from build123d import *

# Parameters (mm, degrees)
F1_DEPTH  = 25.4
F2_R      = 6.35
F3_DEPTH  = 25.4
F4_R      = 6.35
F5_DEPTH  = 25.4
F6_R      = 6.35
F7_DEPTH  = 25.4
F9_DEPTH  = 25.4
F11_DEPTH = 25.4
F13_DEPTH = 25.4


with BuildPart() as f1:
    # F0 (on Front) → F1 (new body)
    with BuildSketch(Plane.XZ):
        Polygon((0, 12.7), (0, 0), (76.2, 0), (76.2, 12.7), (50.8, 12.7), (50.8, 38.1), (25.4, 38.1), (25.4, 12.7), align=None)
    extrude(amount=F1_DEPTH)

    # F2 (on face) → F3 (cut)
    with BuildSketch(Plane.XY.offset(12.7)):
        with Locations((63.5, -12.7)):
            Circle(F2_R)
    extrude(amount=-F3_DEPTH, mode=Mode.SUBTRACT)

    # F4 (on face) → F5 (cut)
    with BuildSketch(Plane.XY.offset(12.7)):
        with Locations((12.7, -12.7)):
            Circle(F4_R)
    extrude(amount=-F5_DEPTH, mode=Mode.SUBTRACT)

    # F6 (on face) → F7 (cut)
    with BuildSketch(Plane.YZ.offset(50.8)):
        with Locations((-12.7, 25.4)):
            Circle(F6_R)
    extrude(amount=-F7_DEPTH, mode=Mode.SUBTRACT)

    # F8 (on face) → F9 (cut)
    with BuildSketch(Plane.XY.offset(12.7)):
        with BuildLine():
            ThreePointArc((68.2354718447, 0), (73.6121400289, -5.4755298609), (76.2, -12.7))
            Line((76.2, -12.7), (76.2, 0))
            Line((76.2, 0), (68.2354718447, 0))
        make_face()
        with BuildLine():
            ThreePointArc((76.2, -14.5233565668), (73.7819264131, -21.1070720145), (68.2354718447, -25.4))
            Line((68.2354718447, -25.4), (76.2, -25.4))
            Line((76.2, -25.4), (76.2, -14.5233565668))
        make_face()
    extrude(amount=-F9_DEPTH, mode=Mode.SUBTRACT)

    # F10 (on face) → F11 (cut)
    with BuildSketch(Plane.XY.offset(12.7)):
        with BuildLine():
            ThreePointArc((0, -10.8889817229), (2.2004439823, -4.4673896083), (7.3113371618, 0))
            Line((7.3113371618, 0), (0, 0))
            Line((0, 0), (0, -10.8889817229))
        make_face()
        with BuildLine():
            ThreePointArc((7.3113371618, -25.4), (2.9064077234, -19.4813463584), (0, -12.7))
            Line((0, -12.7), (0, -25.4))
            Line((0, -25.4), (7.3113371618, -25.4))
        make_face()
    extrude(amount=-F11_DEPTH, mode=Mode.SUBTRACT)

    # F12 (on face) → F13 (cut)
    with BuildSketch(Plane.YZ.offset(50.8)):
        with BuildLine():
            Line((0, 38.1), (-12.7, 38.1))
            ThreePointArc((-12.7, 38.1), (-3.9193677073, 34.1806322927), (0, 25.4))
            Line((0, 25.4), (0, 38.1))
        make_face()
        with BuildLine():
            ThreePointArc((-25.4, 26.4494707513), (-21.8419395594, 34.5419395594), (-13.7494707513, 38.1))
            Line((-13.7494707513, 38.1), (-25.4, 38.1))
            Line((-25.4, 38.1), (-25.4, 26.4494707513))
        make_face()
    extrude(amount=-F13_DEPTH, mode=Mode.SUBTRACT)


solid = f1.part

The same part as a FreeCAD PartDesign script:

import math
import FreeCAD as App
import Part
import Sketcher
Q = App.Units.Quantity

doc = App.newDocument("Part")
body = doc.addObject("PartDesign::Body", "Body")

# Sketch on XZ plane
sketch1 = body.newObject("Sketcher::SketchObject", "Sketch")
sketch1.AttachmentSupport = (doc.getObject("XZ_Plane"), [""])
sketch1.MapMode = "FlatFace"
sketch1.addGeometry(Part.LineSegment(App.Vector(0, 12.7, 0), App.Vector(0, 0, 0)), False)
sketch1.addGeometry(Part.LineSegment(App.Vector(0, 0, 0), App.Vector(76.2, 0, 0)), False)
sketch1.addGeometry(Part.LineSegment(App.Vector(76.2, 0, 0), App.Vector(76.2, 12.7, 0)), False)
sketch1.addGeometry(Part.LineSegment(App.Vector(76.2, 12.7, 0), App.Vector(50.8, 12.7, 0)), False)
sketch1.addGeometry(Part.LineSegment(App.Vector(50.8, 12.7, 0), App.Vector(50.8, 38.1, 0)), False)
sketch1.addGeometry(Part.LineSegment(App.Vector(50.8, 38.1, 0), App.Vector(25.4, 38.1, 0)), False)
sketch1.addGeometry(Part.LineSegment(App.Vector(25.4, 38.1, 0), App.Vector(25.4, 12.7, 0)), False)
sketch1.addGeometry(Part.LineSegment(App.Vector(25.4, 12.7, 0), App.Vector(0, 12.7, 0)), False)
sketch1.addConstraint(Sketcher.Constraint("Coincident", 0, 2, 1, 1))
sketch1.addConstraint(Sketcher.Constraint("Coincident", 1, 2, 2, 1))
sketch1.addConstraint(Sketcher.Constraint("Coincident", 2, 2, 3, 1))
sketch1.addConstraint(Sketcher.Constraint("Coincident", 3, 2, 4, 1))
sketch1.addConstraint(Sketcher.Constraint("Coincident", 4, 2, 5, 1))
sketch1.addConstraint(Sketcher.Constraint("Coincident", 5, 2, 6, 1))
sketch1.addConstraint(Sketcher.Constraint("Coincident", 6, 2, 7, 1))
sketch1.addConstraint(Sketcher.Constraint("Coincident", 7, 2, 0, 1))
sketch1.addConstraint(Sketcher.Constraint("Vertical", 0))
sketch1.addConstraint(Sketcher.Constraint("Horizontal", 1))
sketch1.addConstraint(Sketcher.Constraint("Vertical", 2))
sketch1.addConstraint(Sketcher.Constraint("Horizontal", 3))
sketch1.addConstraint(Sketcher.Constraint("Vertical", 4))
sketch1.addConstraint(Sketcher.Constraint("Horizontal", 5))
sketch1.addConstraint(Sketcher.Constraint("Vertical", 6))
sketch1.addConstraint(Sketcher.Constraint("Horizontal", 7))
sketch1.addConstraint(Sketcher.Constraint("Coincident", 0, 2, -1, 1))
sketch1.addConstraint(Sketcher.Constraint("Horizontal", 3, 2, 6, 2))
sketch1.addConstraint(Sketcher.Constraint("Equal", 3, 5))
sketch1.addConstraint(Sketcher.Constraint("Equal", 5, 7))
sketch1.addConstraint(Sketcher.Constraint("Equal", 7, 4))
sketch1.addConstraint(Sketcher.Constraint("DistanceX", 1, 1, 1, 2, Q("3 in")))
sketch1.addConstraint(Sketcher.Constraint("DistanceY", 0, 2, 0, 1, Q("0.5 in")))
pad1 = body.newObject("PartDesign::Pad", "Pad")
pad1.Profile = sketch1
pad1.Length = Q("1 in")

# Sketch on XY plane
sketch2 = body.newObject("Sketcher::SketchObject", "Sketch001")
sketch2.AttachmentSupport = (doc.getObject("XY_Plane"), [""])
sketch2.MapMode = "FlatFace"
sketch2.AttachmentOffset = App.Placement(App.Vector(0, 0, 0.5 * 25.4), App.Rotation())
sketch2.addGeometry(Part.Circle(App.Vector(63.5, -12.7, 0), App.Vector(0, 0, 1), 6.35), False)
sketch2.addConstraint(Sketcher.Constraint("Diameter", 0, Q("0.5 in")))
sketch2.addConstraint(Sketcher.Constraint("DistanceX", -1, 1, 0, 3, Q("2.5 in")))
sketch2.addConstraint(Sketcher.Constraint("DistanceY", 0, 3, -1, 1, Q("0.5 in")))
pocket1 = body.newObject("PartDesign::Pocket", "Pocket")
pocket1.Profile = sketch2
pocket1.Length = Q("1 in")

# Sketch on XY plane
sketch3 = body.newObject("Sketcher::SketchObject", "Sketch002")
sketch3.AttachmentSupport = (doc.getObject("XY_Plane"), [""])
sketch3.MapMode = "FlatFace"
sketch3.AttachmentOffset = App.Placement(App.Vector(0, 0, 0.5 * 25.4), App.Rotation())
sketch3.addGeometry(Part.Circle(App.Vector(12.7, -12.7, 0), App.Vector(0, 0, 1), 6.35), False)
sketch3.addConstraint(Sketcher.Constraint("Diameter", 0, Q("0.5 in")))
sketch3.addConstraint(Sketcher.Constraint("DistanceX", -1, 1, 0, 3, Q("0.5 in")))
sketch3.addConstraint(Sketcher.Constraint("DistanceY", 0, 3, -1, 1, Q("0.5 in")))
pocket2 = body.newObject("PartDesign::Pocket", "Pocket001")
pocket2.Profile = sketch3
pocket2.Length = Q("1 in")

# Sketch on YZ plane
sketch4 = body.newObject("Sketcher::SketchObject", "Sketch003")
sketch4.AttachmentSupport = (doc.getObject("YZ_Plane"), [""])
sketch4.MapMode = "FlatFace"
sketch4.AttachmentOffset = App.Placement(App.Vector(0, 0, 2 * 25.4), App.Rotation())
sketch4.addGeometry(Part.Circle(App.Vector(-12.7, 25.4, 0), App.Vector(0, 0, 1), 6.35), False)
sketch4.addConstraint(Sketcher.Constraint("Diameter", 0, Q("0.5 in")))
sketch4.addConstraint(Sketcher.Constraint("DistanceY", -1, 1, 0, 3, Q("1 in")))
sketch4.addConstraint(Sketcher.Constraint("DistanceX", 0, 3, -1, 1, Q("0.5 in")))
pocket3 = body.newObject("PartDesign::Pocket", "Pocket002")
pocket3.Profile = sketch4
pocket3.Length = Q("1 in")

# Sketch on XY plane
sketch5 = body.newObject("Sketcher::SketchObject", "Sketch004")
sketch5.AttachmentSupport = (doc.getObject("XY_Plane"), [""])
sketch5.MapMode = "FlatFace"
sketch5.AttachmentOffset = App.Placement(App.Vector(0, 0, 0.5 * 25.4), App.Rotation())
sketch5.addGeometry(Part.ArcOfCircle(Part.Circle(App.Vector(58.456253, -14.980214, 0), App.Vector(0, 0, 1), 17.88966), math.radians(7.322834), math.radians(56.863135)), False)
sketch5.addGeometry(Part.LineSegment(App.Vector(76.2, -12.7, 0), App.Vector(76.2, 0, 0)), False)
sketch5.addGeometry(Part.LineSegment(App.Vector(76.2, 0, 0), App.Vector(68.235472, 0, 0)), False)
sketch5.addGeometry(Part.ArcOfCircle(Part.Circle(App.Vector(63.54595, -13.611678, 0), App.Vector(0, 0, 1), 12.686849), math.radians(-68.306801), math.radians(-4.120832)), False)
sketch5.addGeometry(Part.LineSegment(App.Vector(68.235472, -25.4, 0), App.Vector(76.2, -25.4, 0)), False)
sketch5.addGeometry(Part.LineSegment(App.Vector(76.2, -25.4, 0), App.Vector(76.2, -14.523357, 0)), False)
sketch5.addConstraint(Sketcher.Constraint("Coincident", 0, 1, 1, 1))
sketch5.addConstraint(Sketcher.Constraint("Coincident", 1, 2, 2, 1))
sketch5.addConstraint(Sketcher.Constraint("Coincident", 2, 2, 0, 2))
sketch5.addConstraint(Sketcher.Constraint("Coincident", 3, 1, 4, 1))
sketch5.addConstraint(Sketcher.Constraint("Coincident", 4, 2, 5, 1))
sketch5.addConstraint(Sketcher.Constraint("Coincident", 5, 2, 3, 2))
sketch5.addConstraint(Sketcher.Constraint("Vertical", 1))
sketch5.addConstraint(Sketcher.Constraint("Horizontal", 2))
sketch5.addConstraint(Sketcher.Constraint("Horizontal", 4))
sketch5.addConstraint(Sketcher.Constraint("Vertical", 5))
sketch5.addConstraint(Sketcher.Constraint("PointOnObject", 1, 2, -1))
sketch5.addConstraint(Sketcher.Constraint("Vertical", 2, 2, 3, 1))
sketch5.addConstraint(Sketcher.Constraint("Vertical", 1, 2, 4, 2))
sketch5.addConstraint(Sketcher.Constraint("DistanceY", 1, 1, 1, 2, Q("0.5 in")))
sketch5.addConstraint(Sketcher.Constraint("DistanceX", -1, 1, 0, 1, Q("3 in")))
sketch5.addConstraint(Sketcher.Constraint("DistanceY", 3, 1, -1, 1, Q("1 in")))
sketch5.addConstraint(Sketcher.Constraint("Radius", 0, 17.88966))
sketch5.addConstraint(Sketcher.Constraint("Radius", 3, 12.686849))
sketch5.addConstraint(Sketcher.Constraint("DistanceX", 2, 2, 2, 1, 7.964528))
sketch5.addConstraint(Sketcher.Constraint("DistanceY", 5, 1, 5, 2, 10.876643))
pocket4 = body.newObject("PartDesign::Pocket", "Pocket003")
pocket4.Profile = sketch5
pocket4.Length = Q("1 in")

# Sketch on XY plane
sketch6 = body.newObject("Sketcher::SketchObject", "Sketch005")
sketch6.AttachmentSupport = (doc.getObject("XY_Plane"), [""])
sketch6.MapMode = "FlatFace"
sketch6.AttachmentOffset = App.Placement(App.Vector(0, 0, 0.5 * 25.4), App.Rotation())
sketch6.addGeometry(Part.ArcOfCircle(Part.Circle(App.Vector(13.112904, -11.794491, 0), App.Vector(0, 0, 1), 13.144131), math.radians(116.192011), math.radians(176.049722)), False)
sketch6.addGeometry(Part.LineSegment(App.Vector(7.311337, 0, 0), App.Vector(0, 0, 0)), False)
sketch6.addGeometry(Part.LineSegment(App.Vector(0, 0, 0), App.Vector(0, -10.888982, 0)), False)
sketch6.addGeometry(Part.ArcOfCircle(Part.Circle(App.Vector(30.189223, -3.774743, 0), App.Vector(0, 0, 1), 31.480938), math.radians(-163.530012), math.radians(-136.612278)), False)
sketch6.addGeometry(Part.LineSegment(App.Vector(0, -12.7, 0), App.Vector(0, -25.4, 0)), False)
sketch6.addGeometry(Part.LineSegment(App.Vector(0, -25.4, 0), App.Vector(7.311337, -25.4, 0)), False)
sketch6.addConstraint(Sketcher.Constraint("Coincident", 0, 1, 1, 1))
sketch6.addConstraint(Sketcher.Constraint("Coincident", 1, 2, 2, 1))
sketch6.addConstraint(Sketcher.Constraint("Coincident", 2, 2, 0, 2))
sketch6.addConstraint(Sketcher.Constraint("Coincident", 3, 1, 4, 1))
sketch6.addConstraint(Sketcher.Constraint("Coincident", 4, 2, 5, 1))
sketch6.addConstraint(Sketcher.Constraint("Coincident", 5, 2, 3, 2))
sketch6.addConstraint(Sketcher.Constraint("Horizontal", 1))
sketch6.addConstraint(Sketcher.Constraint("Vertical", 2))
sketch6.addConstraint(Sketcher.Constraint("Vertical", 4))
sketch6.addConstraint(Sketcher.Constraint("Horizontal", 5))
sketch6.addConstraint(Sketcher.Constraint("Coincident", 1, 2, -1, 1))
sketch6.addConstraint(Sketcher.Constraint("PointOnObject", 3, 1, -2))
sketch6.addConstraint(Sketcher.Constraint("Vertical", 0, 1, 5, 2))
sketch6.addConstraint(Sketcher.Constraint("DistanceY", 4, 2, 4, 1, Q("0.5 in")))
sketch6.addConstraint(Sketcher.Constraint("DistanceY", 4, 2, -1, 1, Q("1 in")))
sketch6.addConstraint(Sketcher.Constraint("DistanceY", 2, 2, 2, 1, Q("0.4287001 in")))
sketch6.addConstraint(Sketcher.Constraint("Radius", 0, 13.144131))
sketch6.addConstraint(Sketcher.Constraint("Radius", 3, 31.480938))
sketch6.addConstraint(Sketcher.Constraint("DistanceX", 1, 2, 1, 1, 7.311337))
pocket5 = body.newObject("PartDesign::Pocket", "Pocket004")
pocket5.Profile = sketch6
pocket5.Length = Q("1 in")

# Sketch on YZ plane
sketch7 = body.newObject("Sketcher::SketchObject", "Sketch006")
sketch7.AttachmentSupport = (doc.getObject("YZ_Plane"), [""])
sketch7.MapMode = "FlatFace"
sketch7.AttachmentOffset = App.Placement(App.Vector(0, 0, 2 * 25.4), App.Rotation())
sketch7.addGeometry(Part.LineSegment(App.Vector(0, 38.1, 0), App.Vector(-12.7, 38.1, 0)), False)
sketch7.addGeometry(Part.ArcOfCircle(Part.Circle(App.Vector(-13.429336, 24.670664, 0), App.Vector(0, 0, 1), 13.449127), math.radians(3.108633), math.radians(86.891367)), False)
sketch7.addGeometry(Part.LineSegment(App.Vector(0, 25.4, 0), App.Vector(0, 38.1, 0)), False)
sketch7.addGeometry(Part.ArcOfCircle(Part.Circle(App.Vector(-13.224735, 25.924735, 0), App.Vector(0, 0, 1), 12.186567), math.radians(92.467834), math.radians(177.532166)), False)
sketch7.addGeometry(Part.LineSegment(App.Vector(-13.749471, 38.1, 0), App.Vector(-25.4, 38.1, 0)), False)
sketch7.addGeometry(Part.LineSegment(App.Vector(-25.4, 38.1, 0), App.Vector(-25.4, 26.449471, 0)), False)
sketch7.addConstraint(Sketcher.Constraint("Coincident", 0, 2, 1, 2))
sketch7.addConstraint(Sketcher.Constraint("Coincident", 1, 1, 2, 1))
sketch7.addConstraint(Sketcher.Constraint("Coincident", 2, 2, 0, 1))
sketch7.addConstraint(Sketcher.Constraint("Coincident", 3, 1, 4, 1))
sketch7.addConstraint(Sketcher.Constraint("Coincident", 4, 2, 5, 1))
sketch7.addConstraint(Sketcher.Constraint("Coincident", 5, 2, 3, 2))
sketch7.addConstraint(Sketcher.Constraint("Horizontal", 0))
sketch7.addConstraint(Sketcher.Constraint("Vertical", 2))
sketch7.addConstraint(Sketcher.Constraint("Horizontal", 4))
sketch7.addConstraint(Sketcher.Constraint("Vertical", 5))
sketch7.addConstraint(Sketcher.Constraint("PointOnObject", 1, 1, -2))
sketch7.addConstraint(Sketcher.Constraint("Horizontal", 2, 2, 3, 1))
sketch7.addConstraint(Sketcher.Constraint("Equal", 0, 2))
sketch7.addConstraint(Sketcher.Constraint("Equal", 4, 5))
sketch7.addConstraint(Sketcher.Constraint("DistanceX", 0, 2, 0, 1, Q("0.5 in")))
sketch7.addConstraint(Sketcher.Constraint("DistanceY", -1, 1, 1, 1, Q("1 in")))
sketch7.addConstraint(Sketcher.Constraint("DistanceX", 4, 2, -1, 1, Q("1 in")))
sketch7.addConstraint(Sketcher.Constraint("Radius", 1, 13.449127))
sketch7.addConstraint(Sketcher.Constraint("Radius", 3, 12.186567))
sketch7.addConstraint(Sketcher.Constraint("DistanceX", 4, 2, 4, 1, 11.650529))
pocket6 = body.newObject("PartDesign::Pocket", "Pocket005")
pocket6.Profile = sketch7
pocket6.Length = Q("1 in")

doc.recompute()
